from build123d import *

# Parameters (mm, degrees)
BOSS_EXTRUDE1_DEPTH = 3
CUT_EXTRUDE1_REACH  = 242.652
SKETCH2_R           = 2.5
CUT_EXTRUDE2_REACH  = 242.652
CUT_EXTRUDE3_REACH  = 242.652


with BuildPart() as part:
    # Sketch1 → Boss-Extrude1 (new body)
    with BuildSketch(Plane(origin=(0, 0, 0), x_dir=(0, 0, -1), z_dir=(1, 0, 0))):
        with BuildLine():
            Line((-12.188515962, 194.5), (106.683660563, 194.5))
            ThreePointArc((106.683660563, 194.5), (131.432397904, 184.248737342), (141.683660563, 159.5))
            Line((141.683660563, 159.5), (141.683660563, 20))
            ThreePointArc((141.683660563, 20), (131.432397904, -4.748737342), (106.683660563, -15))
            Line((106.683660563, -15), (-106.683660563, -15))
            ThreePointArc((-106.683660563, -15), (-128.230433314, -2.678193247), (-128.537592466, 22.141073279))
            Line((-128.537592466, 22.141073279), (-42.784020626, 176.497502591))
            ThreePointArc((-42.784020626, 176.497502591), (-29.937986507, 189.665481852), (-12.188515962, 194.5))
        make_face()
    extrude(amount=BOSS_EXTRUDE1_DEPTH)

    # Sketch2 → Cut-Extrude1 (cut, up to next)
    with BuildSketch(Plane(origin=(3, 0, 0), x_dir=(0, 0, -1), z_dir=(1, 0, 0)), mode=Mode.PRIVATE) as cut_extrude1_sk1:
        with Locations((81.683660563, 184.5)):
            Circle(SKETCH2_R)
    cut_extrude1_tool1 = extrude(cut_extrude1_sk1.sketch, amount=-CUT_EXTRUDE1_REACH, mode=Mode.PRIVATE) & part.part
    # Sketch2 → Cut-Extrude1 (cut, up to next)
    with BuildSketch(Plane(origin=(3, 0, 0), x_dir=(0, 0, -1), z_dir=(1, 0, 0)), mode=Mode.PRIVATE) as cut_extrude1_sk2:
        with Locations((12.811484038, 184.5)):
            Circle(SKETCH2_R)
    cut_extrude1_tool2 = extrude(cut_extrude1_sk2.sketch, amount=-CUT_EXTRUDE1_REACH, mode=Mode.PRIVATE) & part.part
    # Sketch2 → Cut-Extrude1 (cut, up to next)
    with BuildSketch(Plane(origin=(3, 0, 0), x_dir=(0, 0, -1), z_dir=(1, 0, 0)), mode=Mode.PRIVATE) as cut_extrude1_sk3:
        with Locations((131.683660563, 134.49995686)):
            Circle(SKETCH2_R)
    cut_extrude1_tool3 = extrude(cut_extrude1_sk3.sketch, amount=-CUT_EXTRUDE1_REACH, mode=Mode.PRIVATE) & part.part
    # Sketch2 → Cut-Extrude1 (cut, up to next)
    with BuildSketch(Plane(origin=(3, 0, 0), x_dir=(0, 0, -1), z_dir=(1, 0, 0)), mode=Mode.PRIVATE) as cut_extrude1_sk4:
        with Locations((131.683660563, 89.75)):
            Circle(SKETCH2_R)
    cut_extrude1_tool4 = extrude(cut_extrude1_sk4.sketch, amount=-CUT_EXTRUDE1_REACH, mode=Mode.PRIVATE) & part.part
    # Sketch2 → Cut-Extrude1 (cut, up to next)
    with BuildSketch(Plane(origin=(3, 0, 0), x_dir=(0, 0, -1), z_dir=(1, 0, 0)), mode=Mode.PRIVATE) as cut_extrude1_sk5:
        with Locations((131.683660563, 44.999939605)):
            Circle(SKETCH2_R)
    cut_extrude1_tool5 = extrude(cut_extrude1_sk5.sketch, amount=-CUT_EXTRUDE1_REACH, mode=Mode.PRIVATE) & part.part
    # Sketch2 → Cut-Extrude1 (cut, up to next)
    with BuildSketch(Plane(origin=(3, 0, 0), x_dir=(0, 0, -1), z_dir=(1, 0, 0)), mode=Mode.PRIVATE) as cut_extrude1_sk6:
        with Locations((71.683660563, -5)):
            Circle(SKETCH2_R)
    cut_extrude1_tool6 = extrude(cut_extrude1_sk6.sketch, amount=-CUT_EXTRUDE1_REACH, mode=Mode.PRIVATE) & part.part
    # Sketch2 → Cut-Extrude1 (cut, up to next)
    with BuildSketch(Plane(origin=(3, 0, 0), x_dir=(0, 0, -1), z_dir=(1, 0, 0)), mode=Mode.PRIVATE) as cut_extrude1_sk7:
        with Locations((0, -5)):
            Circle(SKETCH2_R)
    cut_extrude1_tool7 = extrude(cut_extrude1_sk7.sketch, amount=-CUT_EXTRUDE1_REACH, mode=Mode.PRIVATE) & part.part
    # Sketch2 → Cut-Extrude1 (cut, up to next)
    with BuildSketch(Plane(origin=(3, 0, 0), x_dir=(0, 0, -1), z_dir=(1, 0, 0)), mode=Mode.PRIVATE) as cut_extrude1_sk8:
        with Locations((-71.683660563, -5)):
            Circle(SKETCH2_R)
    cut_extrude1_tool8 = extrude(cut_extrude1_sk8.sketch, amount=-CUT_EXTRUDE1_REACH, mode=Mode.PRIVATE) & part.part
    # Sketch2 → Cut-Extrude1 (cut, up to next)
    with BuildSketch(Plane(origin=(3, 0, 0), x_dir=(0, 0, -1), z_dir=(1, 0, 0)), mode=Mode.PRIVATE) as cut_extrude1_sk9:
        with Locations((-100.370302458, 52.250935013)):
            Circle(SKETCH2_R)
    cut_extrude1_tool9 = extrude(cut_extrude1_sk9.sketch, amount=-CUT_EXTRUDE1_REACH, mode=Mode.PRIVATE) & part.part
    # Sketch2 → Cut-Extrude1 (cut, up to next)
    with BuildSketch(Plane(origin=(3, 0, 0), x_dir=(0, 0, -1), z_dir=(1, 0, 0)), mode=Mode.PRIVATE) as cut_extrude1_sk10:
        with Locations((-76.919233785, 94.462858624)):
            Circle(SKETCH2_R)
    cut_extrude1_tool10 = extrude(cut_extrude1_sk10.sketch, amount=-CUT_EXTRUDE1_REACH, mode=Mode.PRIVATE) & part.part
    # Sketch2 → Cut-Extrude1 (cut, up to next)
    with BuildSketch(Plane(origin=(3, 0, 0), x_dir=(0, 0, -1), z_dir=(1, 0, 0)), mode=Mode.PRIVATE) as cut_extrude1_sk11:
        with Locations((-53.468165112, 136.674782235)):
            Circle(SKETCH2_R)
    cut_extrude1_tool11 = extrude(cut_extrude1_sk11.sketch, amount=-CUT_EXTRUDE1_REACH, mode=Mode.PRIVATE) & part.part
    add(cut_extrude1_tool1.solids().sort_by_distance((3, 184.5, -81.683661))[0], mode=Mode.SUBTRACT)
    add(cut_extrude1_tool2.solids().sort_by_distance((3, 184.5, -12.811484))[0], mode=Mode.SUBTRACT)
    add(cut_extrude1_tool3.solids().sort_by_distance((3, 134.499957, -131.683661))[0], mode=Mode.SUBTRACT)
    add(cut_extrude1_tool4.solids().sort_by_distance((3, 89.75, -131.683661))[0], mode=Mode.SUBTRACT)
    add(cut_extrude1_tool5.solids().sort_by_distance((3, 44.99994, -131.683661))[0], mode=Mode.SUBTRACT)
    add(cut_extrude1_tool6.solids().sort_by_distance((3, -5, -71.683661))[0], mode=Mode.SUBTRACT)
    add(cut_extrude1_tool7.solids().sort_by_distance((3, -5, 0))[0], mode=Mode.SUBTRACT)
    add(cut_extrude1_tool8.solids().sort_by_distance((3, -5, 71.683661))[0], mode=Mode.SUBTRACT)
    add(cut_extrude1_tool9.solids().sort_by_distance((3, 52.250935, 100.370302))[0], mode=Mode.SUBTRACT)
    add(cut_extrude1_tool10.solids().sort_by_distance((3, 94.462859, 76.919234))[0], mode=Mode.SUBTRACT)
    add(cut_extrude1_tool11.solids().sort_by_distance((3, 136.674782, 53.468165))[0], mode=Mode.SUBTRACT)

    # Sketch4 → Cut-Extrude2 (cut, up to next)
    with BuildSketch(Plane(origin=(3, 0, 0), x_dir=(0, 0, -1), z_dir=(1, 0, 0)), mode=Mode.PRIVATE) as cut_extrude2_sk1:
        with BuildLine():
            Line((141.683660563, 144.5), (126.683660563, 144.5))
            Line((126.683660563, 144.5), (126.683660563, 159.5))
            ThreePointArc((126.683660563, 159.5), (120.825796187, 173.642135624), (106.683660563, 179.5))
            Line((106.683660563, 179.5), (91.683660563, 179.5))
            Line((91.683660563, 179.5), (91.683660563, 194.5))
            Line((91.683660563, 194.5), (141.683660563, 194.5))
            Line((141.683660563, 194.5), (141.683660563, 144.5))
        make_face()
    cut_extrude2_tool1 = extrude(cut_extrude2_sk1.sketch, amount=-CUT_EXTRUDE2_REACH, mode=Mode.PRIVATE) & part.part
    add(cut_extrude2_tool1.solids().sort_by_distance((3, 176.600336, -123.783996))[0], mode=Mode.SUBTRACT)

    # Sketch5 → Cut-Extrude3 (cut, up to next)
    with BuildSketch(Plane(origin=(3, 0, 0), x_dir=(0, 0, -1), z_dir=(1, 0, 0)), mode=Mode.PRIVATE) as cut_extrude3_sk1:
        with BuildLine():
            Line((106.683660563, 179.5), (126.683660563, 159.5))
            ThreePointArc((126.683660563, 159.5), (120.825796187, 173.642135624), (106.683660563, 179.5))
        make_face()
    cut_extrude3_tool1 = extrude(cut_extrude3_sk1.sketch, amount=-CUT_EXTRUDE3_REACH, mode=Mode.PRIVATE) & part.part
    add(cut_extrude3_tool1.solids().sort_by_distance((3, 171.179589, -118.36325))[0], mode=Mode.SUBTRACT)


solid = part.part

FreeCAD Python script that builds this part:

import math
import FreeCAD as App
import Part
import Sketcher

V = App.Vector
Q = App.Units.Quantity

doc = App.newDocument("Part")
body = doc.addObject("PartDesign::Body", "Body")

# Sketch on YZ plane
sketch1 = doc.addObject("Sketcher::SketchObject", "Sketch")
body.addObject(sketch1)
sketch1.AttachmentSupport = (doc.YZ_Plane, [""])
sketch1.MapMode = "FlatFace"
sketch1.addGeometry(Part.LineSegment(V(194.5, -106.683661, 0), V(194.5, 12.188516, 0)), False)
sketch1.addGeometry(Part.ArcOfCircle(Part.Circle(V(159.5, 12.188516, 0), V(0, 0, 1), 35), math.radians(0), math.radians(60.945396)), False)
sketch1.addGeometry(Part.LineSegment(V(176.497503, 42.784021, 0), V(22.141073, 128.537592, 0)), False)
sketch1.addGeometry(Part.ArcOfCircle(Part.Circle(V(10, 106.683661, 0), V(0, 0, 1), 25), math.radians(60.945396), math.radians(180)), False)
sketch1.addGeometry(Part.LineSegment(V(-15, 106.683661, 0), V(-15, -106.683661, 0)), False)
sketch1.addGeometry(Part.ArcOfCircle(Part.Circle(V(20, -106.683661, 0), V(0, 0, 1), 35), math.radians(180), math.radians(270)), False)
sketch1.addGeometry(Part.LineSegment(V(20, -141.683661, 0), V(159.5, -141.683661, 0)), False)
sketch1.addGeometry(Part.ArcOfCircle(Part.Circle(V(159.5, -106.683661, 0), V(0, 0, 1), 35), math.radians(-90), math.radians(0)), False)
sketch1.addConstraint(Sketcher.Constraint("Tangent", 0, 2, 1, 1))
sketch1.addConstraint(Sketcher.Constraint("Tangent", 1, 2, 2, 1))
sketch1.addConstraint(Sketcher.Constraint("Tangent", 2, 2, 3, 1))
sketch1.addConstraint(Sketcher.Constraint("Tangent", 3, 2, 4, 1))
sketch1.addConstraint(Sketcher.Constraint("Tangent", 4, 2, 5, 1))
sketch1.addConstraint(Sketcher.Constraint("Tangent", 5, 2, 6, 1))
sketch1.addConstraint(Sketcher.Constraint("Tangent", 6, 2, 7, 1))
sketch1.addConstraint(Sketcher.Constraint("Tangent", 7, 2, 0, 1))
sketch1.addConstraint(Sketcher.Constraint("Vertical", 0))
sketch1.addConstraint(Sketcher.Constraint("Vertical", 4))
sketch1.addConstraint(Sketcher.Constraint("Horizontal", 6))
sketch1.addConstraint(Sketcher.Constraint("Equal", 1, 5))
sketch1.addConstraint(Sketcher.Constraint("Equal", 5, 7))
sketch1.addConstraint(Sketcher.Constraint("Radius", 1, 35.0))
sketch1.addConstraint(Sketcher.Constraint("Radius", 3, 25.0))
sketch1.addConstraint(Sketcher.Constraint("DistanceX", 6, 1, 6, 2, 139.5))
sketch1.addConstraint(Sketcher.Constraint("DistanceX", -1, 1, 3, 3, 10.0))
sketch1.addConstraint(Sketcher.Constraint("DistanceY", 4, 2, 4, 1, 213.367321))
sketch1.addConstraint(Sketcher.Constraint("Distance", 2, 176.577412))
sketch1.addConstraint(Sketcher.Constraint("DistanceY", -1, 1, 3, 3, 106.683661))
pad1 = doc.addObject("PartDesign::Pad", "Pad")
body.addObject(pad1)
pad1.Profile = sketch1
pad1.Length = 3

# Sketch on YZ plane
sketch2 = doc.addObject("Sketcher::SketchObject", "Sketch001")
body.addObject(sketch2)
sketch2.AttachmentSupport = (doc.YZ_Plane, [""])
sketch2.MapMode = "FlatFace"
sketch2.AttachmentOffset = App.Placement(V(0, 0, 3), App.Rotation())
sketch2.addGeometry(Part.Circle(V(184.5, -81.683661, 0), V(0, 0, 1), 2.5), False)
sketch2.addConstraint(Sketcher.Constraint("Diameter", 0, 5.0))
sketch2.addConstraint(Sketcher.Constraint("DistanceX", -1, 1, 0, 3, 184.5))
sketch2.addConstraint(Sketcher.Constraint("DistanceY", 0, 3, -1, 1, 81.683661))
pocket1 = doc.addObject("PartDesign::Pocket", "Pocket")
body.addObject(pocket1)
pocket1.Profile = sketch2
pocket1.Type = "UpToFirst"

# Sketch on YZ plane
sketch3 = doc.addObject("Sketcher::SketchObject", "Sketch002")
body.addObject(sketch3)
sketch3.AttachmentSupport = (doc.YZ_Plane, [""])
sketch3.MapMode = "FlatFace"
sketch3.AttachmentOffset = App.Placement(V(0, 0, 3), App.Rotation())
sketch3.addGeometry(Part.Circle(V(184.5, -12.811484, 0), V(0, 0, 1), 2.5), False)
sketch3.addConstraint(Sketcher.Constraint("Diameter", 0, 5.0))
sketch3.addConstraint(Sketcher.Constraint("DistanceX", -1, 1, 0, 3, 184.5))
sketch3.addConstraint(Sketcher.Constraint("DistanceY", 0, 3, -1, 1, 12.811484))
pocket2 = doc.addObject("PartDesign::Pocket", "Pocket001")
body.addObject(pocket2)
pocket2.Profile = sketch3
pocket2.Type = "UpToFirst"

# Sketch on YZ plane
sketch4 = doc.addObject("Sketcher::SketchObject", "Sketch003")
body.addObject(sketch4)
sketch4.AttachmentSupport = (doc.YZ_Plane, [""])
sketch4.MapMode = "FlatFace"
sketch4.AttachmentOffset = App.Placement(V(0, 0, 3), App.Rotation())
sketch4.addGeometry(Part.Circle(V(134.499957, -131.683661, 0), V(0, 0, 1), 2.5), False)
sketch4.addConstraint(Sketcher.Constraint("Diameter", 0, 5.0))
sketch4.addConstraint(Sketcher.Constraint("DistanceY", 0, 3, -1, 1, 131.683661))
sketch4.addConstraint(Sketcher.Constraint("DistanceX", -1, 1, 0, 3, 134.499957))
pocket3 = doc.addObject("PartDesign::Pocket", "Pocket002")
body.addObject(pocket3)
pocket3.Profile = sketch4
pocket3.Type = "UpToFirst"

# Sketch on YZ plane
sketch5 = doc.addObject("Sketcher::SketchObject", "Sketch004")
body.addObject(sketch5)
sketch5.AttachmentSupport = (doc.YZ_Plane, [""])
sketch5.MapMode = "FlatFace"
sketch5.AttachmentOffset = App.Placement(V(0, 0, 3), App.Rotation())
sketch5.addGeometry(Part.Circle(V(89.75, -131.683661, 0), V(0, 0, 1), 2.5), False)
sketch5.addConstraint(Sketcher.Constraint("Diameter", 0, 5.0))
sketch5.addConstraint(Sketcher.Constraint("DistanceX", -1, 1, 0, 3, 89.75))
sketch5.addConstraint(Sketcher.Constraint("DistanceY", 0, 3, -1, 1, 131.683661))
pocket4 = doc.addObject("PartDesign::Pocket", "Pocket003")
body.addObject(pocket4)
pocket4.Profile = sketch5
pocket4.Type = "UpToFirst"

# Sketch on YZ plane
sketch6 = doc.addObject("Sketcher::SketchObject", "Sketch005")
body.addObject(sketch6)
sketch6.AttachmentSupport = (doc.YZ_Plane, [""])
sketch6.MapMode = "FlatFace"
sketch6.AttachmentOffset = App.Placement(V(0, 0, 3), App.Rotation())
sketch6.addGeometry(Part.Circle(V(44.99994, -131.683661, 0), V(0, 0, 1), 2.5), False)
sketch6.addConstraint(Sketcher.Constraint("Diameter", 0, 5.0))
sketch6.addConstraint(Sketcher.Constraint("DistanceX", -1, 1, 0, 3, 44.99994))
sketch6.addConstraint(Sketcher.Constraint("DistanceY", 0, 3, -1, 1, 131.683661))
pocket5 = doc.addObject("PartDesign::Pocket", "Pocket004")
body.addObject(pocket5)
pocket5.Profile = sketch6
pocket5.Type = "UpToFirst"

# Sketch on YZ plane
sketch7 = doc.addObject("Sketcher::SketchObject", "Sketch006")
body.addObject(sketch7)
sketch7.AttachmentSupport = (doc.YZ_Plane, [""])
sketch7.MapMode = "FlatFace"
sketch7.AttachmentOffset = App.Placement(V(0, 0, 3), App.Rotation())
sketch7.addGeometry(Part.Circle(V(-5, -71.683661, 0), V(0, 0, 1), 2.5), False)
sketch7.addConstraint(Sketcher.Constraint("Diameter", 0, 5.0))
sketch7.addConstraint(Sketcher.Constraint("DistanceX", 0, 3, -1, 1, 5.0))
sketch7.addConstraint(Sketcher.Constraint("DistanceY", 0, 3, -1, 1, 71.683661))
pocket6 = doc.addObject("PartDesign::Pocket", "Pocket005")
body.addObject(pocket6)
pocket6.Profile = sketch7
pocket6.Type = "UpToFirst"

# Sketch on YZ plane
sketch8 = doc.addObject("Sketcher::SketchObject", "Sketch007")
body.addObject(sketch8)
sketch8.AttachmentSupport = (doc.YZ_Plane, [""])
sketch8.MapMode = "FlatFace"
sketch8.AttachmentOffset = App.Placement(V(0, 0, 3), App.Rotation())
sketch8.addGeometry(Part.Circle(V(-5, 0, 0), V(0, 0, 1), 2.5), False)
sketch8.addConstraint(Sketcher.Constraint("PointOnObject", 0, 3, -1))
sketch8.addConstraint(Sketcher.Constraint("Diameter", 0, 5.0))
sketch8.addConstraint(Sketcher.Constraint("DistanceX", 0, 3, -1, 1, 5.0))
pocket7 = doc.addObject("PartDesign::Pocket", "Pocket006")
body.addObject(pocket7)
pocket7.Profile = sketch8
pocket7.Type = "UpToFirst"

# Sketch on YZ plane
sketch9 = doc.addObject("Sketcher::SketchObject", "Sketch008")
body.addObject(sketch9)
sketch9.AttachmentSupport = (doc.YZ_Plane, [""])
sketch9.MapMode = "FlatFace"
sketch9.AttachmentOffset = App.Placement(V(0, 0, 3), App.Rotation())
sketch9.addGeometry(Part.Circle(V(-5, 71.683661, 0), V(0, 0, 1), 2.5), False)
sketch9.addConstraint(Sketcher.Constraint("Diameter", 0, 5.0))
sketch9.addConstraint(Sketcher.Constraint("DistanceX", 0, 3, -1, 1, 5.0))
sketch9.addConstraint(Sketcher.Constraint("DistanceY", -1, 1, 0, 3, 71.683661))
pocket8 = doc.addObject("PartDesign::Pocket", "Pocket007")
body.addObject(pocket8)
pocket8.Profile = sketch9
pocket8.Type = "UpToFirst"

# Sketch on YZ plane
sketch10 = doc.addObject("Sketcher::SketchObject", "Sketch009")
body.addObject(sketch10)
sketch10.AttachmentSupport = (doc.YZ_Plane, [""])
sketch10.MapMode = "FlatFace"
sketch10.AttachmentOffset = App.Placement(V(0, 0, 3), App.Rotation())
sketch10.addGeometry(Part.Circle(V(52.250935, 100.370302, 0), V(0, 0, 1), 2.5), False)
sketch10.addConstraint(Sketcher.Constraint("Diameter", 0, 5.0))
sketch10.addConstraint(Sketcher.Constraint("DistanceX", -1, 1, 0, 3, 52.250935))
sketch10.addConstraint(Sketcher.Constraint("DistanceY", -1, 1, 0, 3, 100.370302))
pocket9 = doc.addObject("PartDesign::Pocket", "Pocket008")
body.addObject(pocket9)
pocket9.Profile = sketch10
pocket9.Type = "UpToFirst"

# Sketch on YZ plane
sketch11 = doc.addObject("Sketcher::SketchObject", "Sketch010")
body.addObject(sketch11)
sketch11.AttachmentSupport = (doc.YZ_Plane, [""])
sketch11.MapMode = "FlatFace"
sketch11.AttachmentOffset = App.Placement(V(0, 0, 3), App.Rotation())
sketch11.addGeometry(Part.Circle(V(94.462859, 76.919234, 0), V(0, 0, 1), 2.5), False)
sketch11.addConstraint(Sketcher.Constraint("Diameter", 0, 5.0))
sketch11.addConstraint(Sketcher.Constraint("DistanceX", -1, 1, 0, 3, 94.462859))
sketch11.addConstraint(Sketcher.Constraint("DistanceY", -1, 1, 0, 3, 76.919234))
pocket10 = doc.addObject("PartDesign::Pocket", "Pocket009")
body.addObject(pocket10)
pocket10.Profile = sketch11
pocket10.Type = "UpToFirst"

# Sketch on YZ plane
sketch12 = doc.addObject("Sketcher::SketchObject", "Sketch011")
body.addObject(sketch12)
sketch12.AttachmentSupport = (doc.YZ_Plane, [""])
sketch12.MapMode = "FlatFace"
sketch12.AttachmentOffset = App.Placement(V(0, 0, 3), App.Rotation())
sketch12.addGeometry(Part.Circle(V(136.674782, 53.468165, 0), V(0, 0, 1), 2.5), False)
sketch12.addConstraint(Sketcher.Constraint("Diameter", 0, 5.0))
sketch12.addConstraint(Sketcher.Constraint("DistanceX", -1, 1, 0, 3, 136.674782))
sketch12.addConstraint(Sketcher.Constraint("DistanceY", -1, 1, 0, 3, 53.468165))
pocket11 = doc.addObject("PartDesign::Pocket", "Pocket010")
body.addObject(pocket11)
pocket11.Profile = sketch12
pocket11.Type = "UpToFirst"

# Sketch on YZ plane
sketch13 = doc.addObject("Sketcher::SketchObject", "Sketch012")
body.addObject(sketch13)
sketch13.AttachmentSupport = (doc.YZ_Plane, [""])
sketch13.MapMode = "FlatFace"
sketch13.AttachmentOffset = App.Placement(V(0, 0, 3), App.Rotation())
sketch13.addGeometry(Part.LineSegment(V(144.5, -126.683661, 0), V(144.5, -141.683661, 0)), False)
sketch13.addGeometry(Part.LineSegment(V(144.5, -141.683661, 0), V(194.5, -141.683661, 0)), False)
sketch13.addGeometry(Part.LineSegment(V(194.5, -141.683661, 0), V(194.5, -91.683661, 0)), False)
sketch13.addGeometry(Part.LineSegment(V(194.5, -91.683661, 0), V(179.5, -91.683661, 0)), False)
sketch13.addGeometry(Part.LineSegment(V(179.5, -91.683661, 0), V(179.5, -106.683661, 0)), False)
sketch13.addGeometry(Part.ArcOfCircle(Part.Circle(V(159.5, -106.683661, 0), V(0, 0, 1), 20), math.radians(-90), math.radians(0)), False)
sketch13.addGeometry(Part.LineSegment(V(159.5, -126.683661, 0), V(144.5, -126.683661, 0)), False)
sketch13.addConstraint(Sketcher.Constraint("Coincident", 0, 2, 1, 1))
sketch13.addConstraint(Sketcher.Constraint("Coincident", 1, 2, 2, 1))
sketch13.addConstraint(Sketcher.Constraint("Coincident", 2, 2, 3, 1))
sketch13.addConstraint(Sketcher.Constraint("Coincident", 3, 2, 4, 1))
sketch13.addConstraint(Sketcher.Constraint("Tangent", 4, 2, 5, 2))
sketch13.addConstraint(Sketcher.Constraint("Tangent", 5, 1, 6, 1))
sketch13.addConstraint(Sketcher.Constraint("Coincident", 6, 2, 0, 1))
sketch13.addConstraint(Sketcher.Constraint("Vertical", 0))
sketch13.addConstraint(Sketcher.Constraint("Horizontal", 1))
sketch13.addConstraint(Sketcher.Constraint("Vertical", 2))
sketch13.addConstraint(Sketcher.Constraint("Horizontal", 3))
sketch13.addConstraint(Sketcher.Constraint("Vertical", 4))
sketch13.addConstraint(Sketcher.Constraint("Horizontal", 6))
sketch13.addConstraint(Sketcher.Constraint("Equal", 3, 6))
sketch13.addConstraint(Sketcher.Constraint("Equal", 6, 0))
sketch13.addConstraint(Sketcher.Constraint("Equal", 1, 2))
sketch13.addConstraint(Sketcher.Constraint("Radius", 5, 20.0))
sketch13.addConstraint(Sketcher.Constraint("DistanceX", 1, 1, 1, 2, 50.0))
sketch13.addConstraint(Sketcher.Constraint("DistanceX", -1, 1, 5, 3, 159.5))
sketch13.addConstraint(Sketcher.Constraint("DistanceY", 5, 3, -1, 1, 106.683661))
pocket12 = doc.addObject("PartDesign::Pocket", "Pocket011")
body.addObject(pocket12)
pocket12.Profile = sketch13
pocket12.Type = "UpToFirst"

# Sketch on YZ plane
sketch14 = doc.addObject("Sketcher::SketchObject", "Sketch013")
body.addObject(sketch14)
sketch14.AttachmentSupport = (doc.YZ_Plane, [""])
sketch14.MapMode = "FlatFace"
sketch14.AttachmentOffset = App.Placement(V(0, 0, 3), App.Rotation())
sketch14.addGeometry(Part.LineSegment(V(179.5, -106.683661, 0), V(159.5, -126.683661, 0)), False)
sketch14.addGeometry(Part.ArcOfCircle(Part.Circle(V(159.5, -106.683661, 0), V(0, 0, 1), 20), math.radians(-90), math.radians(0)), False)
sketch14.addConstraint(Sketcher.Constraint("Coincident", 0, 1, 1, 2))
sketch14.addConstraint(Sketcher.Constraint("Coincident", 1, 1, 0, 2))
sketch14.addConstraint(Sketcher.Constraint("Horizontal", 1, 3, 0, 1))
sketch14.addConstraint(Sketcher.Constraint("Radius", 1, 20.0))
sketch14.addConstraint(Sketcher.Constraint("Angle", 0, Q("-135 deg")))
sketch14.addConstraint(Sketcher.Constraint("DistanceX", -1, 1, 1, 3, 159.5))
sketch14.addConstraint(Sketcher.Constraint("DistanceY", 1, 3, -1, 1, 106.683661))
pocket13 = doc.addObject("PartDesign::Pocket", "Pocket012")
body.addObject(pocket13)
pocket13.Profile = sketch14
pocket13.Type = "UpToFirst"

doc.recompute()
